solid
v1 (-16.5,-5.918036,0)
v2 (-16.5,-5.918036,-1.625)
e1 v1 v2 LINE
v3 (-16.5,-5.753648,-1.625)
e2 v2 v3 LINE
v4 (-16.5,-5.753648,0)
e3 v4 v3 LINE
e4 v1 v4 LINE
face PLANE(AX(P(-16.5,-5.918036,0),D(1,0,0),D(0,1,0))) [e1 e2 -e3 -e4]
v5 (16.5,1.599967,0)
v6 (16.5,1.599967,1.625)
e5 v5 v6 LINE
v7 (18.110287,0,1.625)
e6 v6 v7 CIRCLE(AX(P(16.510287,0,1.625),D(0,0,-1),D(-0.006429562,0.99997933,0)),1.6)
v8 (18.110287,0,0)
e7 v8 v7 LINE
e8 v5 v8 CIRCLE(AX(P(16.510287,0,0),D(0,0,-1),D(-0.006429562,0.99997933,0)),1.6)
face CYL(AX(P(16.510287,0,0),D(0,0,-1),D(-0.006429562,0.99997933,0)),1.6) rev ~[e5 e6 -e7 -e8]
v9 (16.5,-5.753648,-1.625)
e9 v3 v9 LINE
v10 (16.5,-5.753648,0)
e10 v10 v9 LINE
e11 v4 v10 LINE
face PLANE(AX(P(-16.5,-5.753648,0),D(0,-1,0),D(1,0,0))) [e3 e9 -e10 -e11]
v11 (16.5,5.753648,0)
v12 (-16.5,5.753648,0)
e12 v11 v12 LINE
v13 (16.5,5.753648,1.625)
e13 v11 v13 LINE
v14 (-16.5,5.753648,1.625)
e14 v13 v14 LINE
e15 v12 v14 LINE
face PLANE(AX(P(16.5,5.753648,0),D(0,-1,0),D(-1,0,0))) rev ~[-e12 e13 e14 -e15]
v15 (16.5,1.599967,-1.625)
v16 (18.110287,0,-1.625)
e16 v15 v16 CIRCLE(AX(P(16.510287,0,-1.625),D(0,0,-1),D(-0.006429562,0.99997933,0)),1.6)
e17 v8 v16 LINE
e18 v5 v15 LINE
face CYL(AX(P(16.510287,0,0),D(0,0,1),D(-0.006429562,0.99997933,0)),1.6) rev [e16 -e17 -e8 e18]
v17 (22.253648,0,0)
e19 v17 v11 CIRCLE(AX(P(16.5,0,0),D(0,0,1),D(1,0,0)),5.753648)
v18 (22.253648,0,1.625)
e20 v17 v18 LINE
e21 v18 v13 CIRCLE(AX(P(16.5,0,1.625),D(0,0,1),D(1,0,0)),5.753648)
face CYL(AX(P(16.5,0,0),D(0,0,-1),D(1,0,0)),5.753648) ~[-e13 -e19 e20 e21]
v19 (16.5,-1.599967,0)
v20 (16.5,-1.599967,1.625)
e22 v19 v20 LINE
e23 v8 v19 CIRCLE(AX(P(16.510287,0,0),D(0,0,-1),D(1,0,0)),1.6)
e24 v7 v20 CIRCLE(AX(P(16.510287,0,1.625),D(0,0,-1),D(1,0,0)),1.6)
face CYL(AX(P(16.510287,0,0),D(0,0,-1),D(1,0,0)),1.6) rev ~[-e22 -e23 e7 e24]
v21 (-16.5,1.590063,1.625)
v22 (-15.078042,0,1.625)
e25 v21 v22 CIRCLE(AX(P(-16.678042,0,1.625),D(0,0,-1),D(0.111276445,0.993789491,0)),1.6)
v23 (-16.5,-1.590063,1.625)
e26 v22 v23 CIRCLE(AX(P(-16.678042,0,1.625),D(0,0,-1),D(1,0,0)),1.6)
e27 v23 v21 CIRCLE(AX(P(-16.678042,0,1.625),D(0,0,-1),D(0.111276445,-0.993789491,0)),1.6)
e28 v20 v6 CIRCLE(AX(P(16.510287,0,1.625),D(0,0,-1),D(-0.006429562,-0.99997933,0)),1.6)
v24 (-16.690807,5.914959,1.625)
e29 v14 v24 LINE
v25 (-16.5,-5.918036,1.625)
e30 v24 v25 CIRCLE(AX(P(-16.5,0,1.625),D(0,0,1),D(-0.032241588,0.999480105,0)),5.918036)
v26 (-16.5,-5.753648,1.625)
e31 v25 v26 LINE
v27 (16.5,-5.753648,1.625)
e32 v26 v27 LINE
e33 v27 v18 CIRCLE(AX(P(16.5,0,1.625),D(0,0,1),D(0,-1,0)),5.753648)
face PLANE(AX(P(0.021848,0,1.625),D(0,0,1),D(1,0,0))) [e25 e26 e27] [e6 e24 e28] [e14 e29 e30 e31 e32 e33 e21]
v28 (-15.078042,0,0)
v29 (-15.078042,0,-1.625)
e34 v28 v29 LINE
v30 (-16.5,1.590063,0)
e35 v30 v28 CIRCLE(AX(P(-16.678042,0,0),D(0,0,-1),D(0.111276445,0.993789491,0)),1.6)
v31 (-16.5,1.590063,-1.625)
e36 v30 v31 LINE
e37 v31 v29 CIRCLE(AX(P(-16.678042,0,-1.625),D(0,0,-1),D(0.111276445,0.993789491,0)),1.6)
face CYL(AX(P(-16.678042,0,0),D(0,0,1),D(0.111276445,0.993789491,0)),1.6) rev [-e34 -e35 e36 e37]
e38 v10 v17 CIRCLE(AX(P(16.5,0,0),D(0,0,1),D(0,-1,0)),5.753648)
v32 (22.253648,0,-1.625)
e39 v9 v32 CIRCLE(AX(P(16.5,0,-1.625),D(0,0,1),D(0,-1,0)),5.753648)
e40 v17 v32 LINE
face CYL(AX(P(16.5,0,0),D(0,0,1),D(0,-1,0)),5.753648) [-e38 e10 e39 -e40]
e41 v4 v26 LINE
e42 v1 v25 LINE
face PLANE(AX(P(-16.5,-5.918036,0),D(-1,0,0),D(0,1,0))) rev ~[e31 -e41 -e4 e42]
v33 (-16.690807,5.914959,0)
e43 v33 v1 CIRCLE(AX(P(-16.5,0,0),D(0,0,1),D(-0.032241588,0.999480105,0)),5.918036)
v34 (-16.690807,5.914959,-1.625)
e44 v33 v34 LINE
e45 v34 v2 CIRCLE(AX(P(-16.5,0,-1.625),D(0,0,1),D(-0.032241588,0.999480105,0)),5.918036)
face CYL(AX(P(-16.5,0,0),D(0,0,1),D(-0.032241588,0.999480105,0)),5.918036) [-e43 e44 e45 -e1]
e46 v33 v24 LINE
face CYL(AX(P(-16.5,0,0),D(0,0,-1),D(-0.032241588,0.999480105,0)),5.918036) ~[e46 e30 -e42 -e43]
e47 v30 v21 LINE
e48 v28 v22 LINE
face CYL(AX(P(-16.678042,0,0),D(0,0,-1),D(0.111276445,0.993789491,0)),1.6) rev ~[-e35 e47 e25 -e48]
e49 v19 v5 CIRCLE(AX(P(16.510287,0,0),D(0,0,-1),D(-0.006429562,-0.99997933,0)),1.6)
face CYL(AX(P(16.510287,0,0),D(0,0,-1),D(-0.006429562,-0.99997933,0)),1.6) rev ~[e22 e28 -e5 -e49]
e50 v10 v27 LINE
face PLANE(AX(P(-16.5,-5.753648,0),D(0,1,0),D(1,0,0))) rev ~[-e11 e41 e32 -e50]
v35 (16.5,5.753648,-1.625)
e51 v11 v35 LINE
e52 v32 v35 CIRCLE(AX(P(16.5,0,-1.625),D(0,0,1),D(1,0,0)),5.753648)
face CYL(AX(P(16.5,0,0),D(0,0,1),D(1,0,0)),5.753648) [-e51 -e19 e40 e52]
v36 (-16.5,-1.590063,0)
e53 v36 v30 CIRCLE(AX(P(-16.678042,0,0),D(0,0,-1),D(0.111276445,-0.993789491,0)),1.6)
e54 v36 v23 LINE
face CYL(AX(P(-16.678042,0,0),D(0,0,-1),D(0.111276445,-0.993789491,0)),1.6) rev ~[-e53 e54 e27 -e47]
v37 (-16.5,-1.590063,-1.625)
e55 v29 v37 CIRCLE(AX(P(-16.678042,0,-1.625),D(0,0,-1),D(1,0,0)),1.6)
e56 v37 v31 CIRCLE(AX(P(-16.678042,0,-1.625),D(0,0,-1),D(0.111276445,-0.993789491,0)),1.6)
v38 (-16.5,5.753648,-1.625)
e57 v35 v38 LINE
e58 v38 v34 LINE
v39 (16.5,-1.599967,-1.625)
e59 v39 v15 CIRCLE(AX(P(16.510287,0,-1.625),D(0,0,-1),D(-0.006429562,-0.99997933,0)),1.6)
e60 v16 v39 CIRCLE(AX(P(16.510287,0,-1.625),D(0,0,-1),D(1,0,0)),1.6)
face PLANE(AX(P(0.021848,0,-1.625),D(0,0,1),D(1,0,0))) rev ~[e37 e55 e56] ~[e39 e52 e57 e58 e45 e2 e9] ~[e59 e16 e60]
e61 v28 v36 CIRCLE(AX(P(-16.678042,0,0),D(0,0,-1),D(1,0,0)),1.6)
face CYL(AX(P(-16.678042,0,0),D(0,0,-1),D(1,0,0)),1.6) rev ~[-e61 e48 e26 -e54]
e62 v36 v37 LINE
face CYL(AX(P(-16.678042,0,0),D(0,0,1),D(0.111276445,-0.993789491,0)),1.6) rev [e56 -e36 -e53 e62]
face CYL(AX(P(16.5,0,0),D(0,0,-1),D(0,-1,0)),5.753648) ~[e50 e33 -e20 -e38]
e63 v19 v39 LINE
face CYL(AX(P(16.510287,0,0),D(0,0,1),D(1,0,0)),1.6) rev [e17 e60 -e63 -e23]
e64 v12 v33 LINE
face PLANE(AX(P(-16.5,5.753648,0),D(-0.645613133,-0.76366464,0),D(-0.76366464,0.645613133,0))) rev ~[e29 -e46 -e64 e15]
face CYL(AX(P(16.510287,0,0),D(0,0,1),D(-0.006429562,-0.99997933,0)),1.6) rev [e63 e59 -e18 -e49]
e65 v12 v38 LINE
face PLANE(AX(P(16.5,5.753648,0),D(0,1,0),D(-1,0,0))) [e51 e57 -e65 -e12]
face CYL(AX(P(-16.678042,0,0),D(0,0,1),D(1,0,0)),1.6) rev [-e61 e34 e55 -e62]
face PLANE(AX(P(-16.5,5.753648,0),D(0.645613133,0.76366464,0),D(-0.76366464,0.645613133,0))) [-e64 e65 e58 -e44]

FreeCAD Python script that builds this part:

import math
import FreeCAD as App
import Part
import Sketcher

V = App.Vector

doc = App.newDocument("Part")
body = doc.addObject("PartDesign::Body", "Body")

sketch1 = body.newObject("Sketcher::SketchObject", "Sketch")
sketch1.AttachmentSupport = (doc.getObject("XY_Plane"), [""])
sketch1.MapMode = "FlatFace"
sketch1.addGeometry(Part.LineSegment(V(-16.5, -5.75, 0), V(16.5, -5.75, 0)), False)
sketch1.addGeometry(Part.ArcOfCircle(Part.Circle(V(16.5, 0, 0), V(0, 0, 1), 5.75), math.radians(-90), math.radians(0)), False)
sketch1.addGeometry(Part.ArcOfCircle(Part.Circle(V(16.5, 0, 0), V(0, 0, 1), 5.75), math.radians(0), math.radians(90)), False)
sketch1.addGeometry(Part.LineSegment(V(16.5, 5.75, 0), V(-16.5, 5.75, 0)), False)
sketch1.addGeometry(Part.LineSegment(V(-16.5, 5.75, 0), V(-16.69, 5.91, 0)), False)
sketch1.addGeometry(Part.ArcOfCircle(Part.Circle(V(-16.5, 0, 0), V(0, 0, 1), 5.92), math.radians(92), math.radians(270)), False)
sketch1.addGeometry(Part.LineSegment(V(-16.5, -5.92, 0), V(-16.5, -5.75, 0)), False)
sketch1.addGeometry(Part.ArcOfCircle(Part.Circle(V(16.51, 0, 0), V(0, 0, 1), 1.6), math.radians(90), math.radians(270)), False)
sketch1.addGeometry(Part.ArcOfCircle(Part.Circle(V(16.51, 0, 0), V(0, 0, 1), 1.6), math.radians(0), math.radians(90)), False)
sketch1.addGeometry(Part.ArcOfCircle(Part.Circle(V(16.51, 0, 0), V(0, 0, 1), 1.6), math.radians(-90), math.radians(0)), False)
sketch1.addGeometry(Part.ArcOfCircle(Part.Circle(V(-16.68, 0, 0), V(0, 0, 1), 1.6), math.radians(-84), math.radians(0)), False)
sketch1.addGeometry(Part.ArcOfCircle(Part.Circle(V(-16.68, 0, 0), V(0, 0, 1), 1.6), math.radians(84), math.radians(276)), False)
sketch1.addGeometry(Part.ArcOfCircle(Part.Circle(V(-16.68, 0, 0), V(0, 0, 1), 1.6), math.radians(0), math.radians(84)), False)
sketch1.addConstraint(Sketcher.Constraint("Tangent", 0, 2, 1, 1))
sketch1.addConstraint(Sketcher.Constraint("Tangent", 1, 2, 2, 1))
sketch1.addConstraint(Sketcher.Constraint("Tangent", 2, 2, 3, 1))
sketch1.addConstraint(Sketcher.Constraint("Coincident", 3, 2, 4, 1))
sketch1.addConstraint(Sketcher.Constraint("Coincident", 4, 2, 5, 1))
sketch1.addConstraint(Sketcher.Constraint("Coincident", 5, 2, 6, 1))
sketch1.addConstraint(Sketcher.Constraint("Coincident", 6, 2, 0, 1))
sketch1.addConstraint(Sketcher.Constraint("Tangent", 7, 1, 8, 2))
sketch1.addConstraint(Sketcher.Constraint("Tangent", 8, 1, 9, 2))
sketch1.addConstraint(Sketcher.Constraint("Tangent", 9, 1, 7, 2))
sketch1.addConstraint(Sketcher.Constraint("Tangent", 10, 1, 11, 2))
sketch1.addConstraint(Sketcher.Constraint("Tangent", 11, 1, 12, 2))
sketch1.addConstraint(Sketcher.Constraint("Tangent", 12, 1, 10, 2))
sketch1.addConstraint(Sketcher.Constraint("Horizontal", 0))
sketch1.addConstraint(Sketcher.Constraint("Horizontal", 3))
sketch1.addConstraint(Sketcher.Constraint("Vertical", 6))
sketch1.addConstraint(Sketcher.Constraint("Equal", 1, 2))
sketch1.addConstraint(Sketcher.Constraint("Equal", 9, 10))
sketch1.addConstraint(Sketcher.Constraint("Symmetric", 1, 3, 5, 3, -1, 1))
sketch1.addConstraint(Sketcher.Constraint("Symmetric", 0, 2, 3, 2, -1, 1))
sketch1.addConstraint(Sketcher.Constraint("Symmetric", 7, 1, 9, 1, -1))
sketch1.addConstraint(Sketcher.Constraint("Symmetric", 10, 1, 11, 1, -1))
sketch1.addConstraint(Sketcher.Constraint("PointOnObject", 1, 2, -1))
sketch1.addConstraint(Sketcher.Constraint("PointOnObject", 8, 1, -1))
sketch1.addConstraint(Sketcher.Constraint("PointOnObject", 12, 1, -1))
sketch1.addConstraint(Sketcher.Constraint("Vertical", 3, 2, 5, 2))
sketch1.addConstraint(Sketcher.Constraint("Vertical", 2, 2, 7, 1))
sketch1.addConstraint(Sketcher.Constraint("Vertical", 6, 2, 10, 1))
sketch1.addConstraint(Sketcher.Constraint("Radius", 7, 1.6))
sketch1.addConstraint(Sketcher.Constraint("DistanceX", 0, 1, 0, 2, 33.0))
sketch1.addConstraint(Sketcher.Constraint("Radius", 1, 5.753648))
sketch1.addConstraint(Sketcher.Constraint("Radius", 5, 5.918036))
sketch1.addConstraint(Sketcher.Constraint("DistanceY", -1, 1, 4, 2, 5.914959))
sketch1.addConstraint(Sketcher.Constraint("DistanceX", 10, 3, 7, 3, 33.18833))
sketch1.addConstraint(Sketcher.Constraint("DistanceX", 7, 3, 1, 2, 5.743361))
pad1 = body.newObject("PartDesign::Pad", "Pad")
pad1.Profile = sketch1
pad1.Length = 3.25
pad1.Midplane = True

doc.recompute()
